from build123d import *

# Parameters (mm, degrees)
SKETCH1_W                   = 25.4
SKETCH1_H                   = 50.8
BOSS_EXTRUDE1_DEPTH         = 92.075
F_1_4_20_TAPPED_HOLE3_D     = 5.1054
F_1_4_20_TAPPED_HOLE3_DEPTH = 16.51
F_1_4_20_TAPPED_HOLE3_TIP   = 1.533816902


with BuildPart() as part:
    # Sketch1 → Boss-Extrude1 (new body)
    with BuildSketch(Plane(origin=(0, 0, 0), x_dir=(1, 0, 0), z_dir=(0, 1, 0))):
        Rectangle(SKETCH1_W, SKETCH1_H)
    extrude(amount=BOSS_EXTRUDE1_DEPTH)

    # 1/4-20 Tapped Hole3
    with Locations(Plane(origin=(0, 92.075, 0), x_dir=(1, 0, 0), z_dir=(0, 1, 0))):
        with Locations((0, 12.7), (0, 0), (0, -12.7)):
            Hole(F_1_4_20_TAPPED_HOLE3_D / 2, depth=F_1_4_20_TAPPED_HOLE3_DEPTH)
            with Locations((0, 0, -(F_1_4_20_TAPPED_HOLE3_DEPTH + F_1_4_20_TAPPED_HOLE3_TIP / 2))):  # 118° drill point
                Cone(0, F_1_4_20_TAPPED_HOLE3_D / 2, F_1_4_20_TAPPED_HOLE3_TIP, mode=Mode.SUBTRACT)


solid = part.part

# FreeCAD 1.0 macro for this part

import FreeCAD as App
import Part
import Sketcher
Q = App.Units.Quantity


def add_polygon(sketch, points):
    """Adds a closed chain of lines whose ends are joined by coincident constraints."""
    first, n = sketch.GeometryCount, len(points)
    for a, b in zip(points, points[1:] + points[:1]):
        sketch.addGeometry(Part.LineSegment(App.Vector(*a, 0), App.Vector(*b, 0)), False)
    for i in range(n):
        sketch.addConstraint(Sketcher.Constraint("Coincident", first + i, 2, first + (i + 1) % n, 1))

doc = App.newDocument("Part")
body = doc.addObject("PartDesign::Body", "Body")

# Sketch on XZ plane
sketch1 = body.newObject("Sketcher::SketchObject", "Sketch")
sketch1.AttachmentSupport = (doc.getObject("XZ_Plane"), [""])
sketch1.MapMode = "FlatFace"
add_polygon(sketch1, [(-12.7, -25.4), (-12.7, 25.4), (12.7, 25.4), (12.7, -25.4)])  # lines 0-3
sketch1.addConstraint([
    Sketcher.Constraint("Vertical", 0),
    Sketcher.Constraint("Horizontal", 1),
    Sketcher.Constraint("Vertical", 2),
    Sketcher.Constraint("Horizontal", 3),
    Sketcher.Constraint("Symmetric", 0, 2, 2, 2, -1, 1),
    Sketcher.Constraint("DistanceX", 1, 1, 1, 2, Q("1 in")),
    Sketcher.Constraint("DistanceY", 0, 1, 0, 2, Q("2 in")),
])
pad1 = body.newObject("PartDesign::Pad", "Pad")
pad1.Profile = sketch1
pad1.Length = Q("3.625 in")
pad1.Reversed = True

# Sketch on XZ plane
sketch2 = body.newObject("Sketcher::SketchObject", "Sketch001")
sketch2.AttachmentSupport = (doc.getObject("XZ_Plane"), [""])
sketch2.MapMode = "FlatFace"
sketch2.AttachmentOffset = App.Placement(App.Vector(0, 0, -3.625 * 25.4), App.Rotation())
sketch2.addGeometry([
    Part.Circle(App.Vector(0, -12.7, 0), App.Vector(0, 0, 1), 2.5527),
    Part.Circle(App.Vector(0, 0, 0), App.Vector(0, 0, 1), 2.5527),
    Part.Circle(App.Vector(0, 12.7, 0), App.Vector(0, 0, 1), 2.5527),
], False)
sketch2.addConstraint([
    Sketcher.Constraint("Coincident", 1, 3, -1, 1),
    Sketcher.Constraint("Equal", 0, 1),
    Sketcher.Constraint("Equal", 1, 2),
    Sketcher.Constraint("Symmetric", 0, 3, 2, 3, -1, 1),
    Sketcher.Constraint("PointOnObject", 0, 3, -2),
    Sketcher.Constraint("Diameter", 0, Q("0.201 in")),
    Sketcher.Constraint("DistanceY", 0, 3, 2, 3, Q("1 in")),
])
doc.recompute()
hole = body.newObject("PartDesign::Hole", "Hole")
hole.Profile = sketch2
hole.ThreadType = "None"
hole.Diameter = Q("0.201 in")
hole.DepthType = "Dimension"
hole.Depth = Q("0.65 in")
hole.DrillPoint = "Angled"
hole.DrillPointAngle = 118
hole.Reversed = True

doc.recompute()
